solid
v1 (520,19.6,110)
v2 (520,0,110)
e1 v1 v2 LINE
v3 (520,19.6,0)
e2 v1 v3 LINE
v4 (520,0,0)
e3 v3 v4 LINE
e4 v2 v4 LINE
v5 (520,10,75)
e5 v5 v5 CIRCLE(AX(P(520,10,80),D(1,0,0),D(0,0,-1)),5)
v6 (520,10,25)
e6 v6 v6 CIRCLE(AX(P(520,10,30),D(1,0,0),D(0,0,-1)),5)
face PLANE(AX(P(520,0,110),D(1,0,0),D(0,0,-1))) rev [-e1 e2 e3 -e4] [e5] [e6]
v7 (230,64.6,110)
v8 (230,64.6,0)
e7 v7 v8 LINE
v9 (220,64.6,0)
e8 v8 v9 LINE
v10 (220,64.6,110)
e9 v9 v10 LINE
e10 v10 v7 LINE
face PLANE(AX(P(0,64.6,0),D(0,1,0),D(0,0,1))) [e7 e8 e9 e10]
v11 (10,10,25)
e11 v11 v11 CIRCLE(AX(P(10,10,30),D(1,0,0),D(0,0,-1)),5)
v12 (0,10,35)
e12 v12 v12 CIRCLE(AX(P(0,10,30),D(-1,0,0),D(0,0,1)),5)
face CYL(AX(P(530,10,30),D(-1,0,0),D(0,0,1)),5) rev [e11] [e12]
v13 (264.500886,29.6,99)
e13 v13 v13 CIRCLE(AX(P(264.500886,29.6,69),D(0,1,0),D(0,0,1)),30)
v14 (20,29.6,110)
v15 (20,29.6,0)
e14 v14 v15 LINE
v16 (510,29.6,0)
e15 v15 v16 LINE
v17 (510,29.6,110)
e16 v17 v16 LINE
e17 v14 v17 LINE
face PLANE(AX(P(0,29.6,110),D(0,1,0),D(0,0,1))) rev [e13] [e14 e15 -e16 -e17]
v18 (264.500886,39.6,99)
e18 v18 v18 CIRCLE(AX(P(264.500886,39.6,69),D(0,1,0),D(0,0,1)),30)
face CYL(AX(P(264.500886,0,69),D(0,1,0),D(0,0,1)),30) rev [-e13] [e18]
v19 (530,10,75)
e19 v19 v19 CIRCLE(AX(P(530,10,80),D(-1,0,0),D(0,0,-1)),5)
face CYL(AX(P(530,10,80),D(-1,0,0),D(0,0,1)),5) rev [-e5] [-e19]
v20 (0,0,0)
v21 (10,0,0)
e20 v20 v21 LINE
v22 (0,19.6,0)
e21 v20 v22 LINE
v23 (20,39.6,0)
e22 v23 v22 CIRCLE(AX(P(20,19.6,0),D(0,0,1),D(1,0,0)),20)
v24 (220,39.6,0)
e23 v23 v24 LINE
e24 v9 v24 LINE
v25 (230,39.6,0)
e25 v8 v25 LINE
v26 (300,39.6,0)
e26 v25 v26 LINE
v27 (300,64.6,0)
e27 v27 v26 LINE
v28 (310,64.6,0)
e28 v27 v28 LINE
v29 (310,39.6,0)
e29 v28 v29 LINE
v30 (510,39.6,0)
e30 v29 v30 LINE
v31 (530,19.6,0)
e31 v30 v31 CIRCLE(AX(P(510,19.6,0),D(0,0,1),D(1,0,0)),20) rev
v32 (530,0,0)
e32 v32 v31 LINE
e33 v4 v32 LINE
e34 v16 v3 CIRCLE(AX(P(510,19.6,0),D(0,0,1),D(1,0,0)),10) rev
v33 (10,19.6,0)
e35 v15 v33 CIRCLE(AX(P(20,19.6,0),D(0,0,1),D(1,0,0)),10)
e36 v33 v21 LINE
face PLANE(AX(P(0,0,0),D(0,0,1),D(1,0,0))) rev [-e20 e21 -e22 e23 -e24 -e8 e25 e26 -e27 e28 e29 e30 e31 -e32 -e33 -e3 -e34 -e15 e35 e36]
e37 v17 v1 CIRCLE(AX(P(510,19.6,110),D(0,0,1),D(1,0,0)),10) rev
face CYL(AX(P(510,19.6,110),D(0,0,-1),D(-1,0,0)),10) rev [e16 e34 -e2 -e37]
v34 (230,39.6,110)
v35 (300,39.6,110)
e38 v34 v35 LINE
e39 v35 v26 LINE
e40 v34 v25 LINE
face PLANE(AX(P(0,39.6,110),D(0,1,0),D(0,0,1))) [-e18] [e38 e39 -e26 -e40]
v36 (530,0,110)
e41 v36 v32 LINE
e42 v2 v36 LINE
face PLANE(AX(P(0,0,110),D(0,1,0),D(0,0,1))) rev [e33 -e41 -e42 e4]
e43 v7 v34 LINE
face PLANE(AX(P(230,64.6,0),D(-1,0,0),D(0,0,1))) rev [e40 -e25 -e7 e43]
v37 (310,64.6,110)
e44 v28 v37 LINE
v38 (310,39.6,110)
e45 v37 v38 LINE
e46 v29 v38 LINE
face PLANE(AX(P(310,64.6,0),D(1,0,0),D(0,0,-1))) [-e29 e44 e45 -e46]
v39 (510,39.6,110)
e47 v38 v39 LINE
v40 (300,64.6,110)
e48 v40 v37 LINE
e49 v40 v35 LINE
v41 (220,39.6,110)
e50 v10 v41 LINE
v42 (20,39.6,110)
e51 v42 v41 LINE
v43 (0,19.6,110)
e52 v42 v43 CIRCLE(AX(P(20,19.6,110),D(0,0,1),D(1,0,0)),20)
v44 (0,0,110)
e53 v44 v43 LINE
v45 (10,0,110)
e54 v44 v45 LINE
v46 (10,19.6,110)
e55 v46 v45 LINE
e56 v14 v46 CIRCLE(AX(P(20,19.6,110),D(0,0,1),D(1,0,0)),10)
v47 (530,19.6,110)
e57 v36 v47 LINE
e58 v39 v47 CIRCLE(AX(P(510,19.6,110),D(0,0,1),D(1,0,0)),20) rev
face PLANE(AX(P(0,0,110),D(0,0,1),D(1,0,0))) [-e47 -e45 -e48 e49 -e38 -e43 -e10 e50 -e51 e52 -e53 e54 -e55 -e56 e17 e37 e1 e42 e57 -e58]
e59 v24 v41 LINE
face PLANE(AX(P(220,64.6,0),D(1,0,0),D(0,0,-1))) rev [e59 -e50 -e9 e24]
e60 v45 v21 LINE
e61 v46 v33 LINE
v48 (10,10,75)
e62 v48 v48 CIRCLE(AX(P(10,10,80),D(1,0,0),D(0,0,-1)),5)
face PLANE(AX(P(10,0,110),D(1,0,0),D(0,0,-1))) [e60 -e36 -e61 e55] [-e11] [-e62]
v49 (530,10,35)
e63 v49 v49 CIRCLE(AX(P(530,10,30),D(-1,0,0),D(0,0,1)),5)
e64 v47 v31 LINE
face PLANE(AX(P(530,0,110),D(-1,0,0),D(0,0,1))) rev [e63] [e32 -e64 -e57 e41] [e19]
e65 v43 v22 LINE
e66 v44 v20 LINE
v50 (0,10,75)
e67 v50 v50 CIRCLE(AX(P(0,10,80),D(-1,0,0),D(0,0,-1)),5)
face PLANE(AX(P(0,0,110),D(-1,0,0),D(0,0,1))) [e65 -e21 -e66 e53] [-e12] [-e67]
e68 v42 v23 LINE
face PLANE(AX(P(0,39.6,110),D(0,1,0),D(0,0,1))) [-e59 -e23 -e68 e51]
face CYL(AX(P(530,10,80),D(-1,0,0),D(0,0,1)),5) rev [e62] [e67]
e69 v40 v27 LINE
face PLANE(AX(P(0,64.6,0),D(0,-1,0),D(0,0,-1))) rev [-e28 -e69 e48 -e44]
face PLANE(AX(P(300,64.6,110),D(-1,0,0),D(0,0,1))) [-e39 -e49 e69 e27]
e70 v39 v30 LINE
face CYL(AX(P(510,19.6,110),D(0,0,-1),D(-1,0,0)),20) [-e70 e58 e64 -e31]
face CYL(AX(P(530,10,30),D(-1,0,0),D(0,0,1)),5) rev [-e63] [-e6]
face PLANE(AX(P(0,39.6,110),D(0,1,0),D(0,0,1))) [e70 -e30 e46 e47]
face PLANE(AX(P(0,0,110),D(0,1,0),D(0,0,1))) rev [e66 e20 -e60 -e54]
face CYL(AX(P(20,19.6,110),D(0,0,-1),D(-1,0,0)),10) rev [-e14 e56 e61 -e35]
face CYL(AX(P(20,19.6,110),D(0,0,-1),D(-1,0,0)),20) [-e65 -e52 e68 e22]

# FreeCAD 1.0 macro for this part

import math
import FreeCAD as App
import Part
import Sketcher
from FreeCAD import Vector

doc = App.newDocument("Part")
params = doc.addObject("Spreadsheet::Sheet", "Params")
for row, (alias, value) in enumerate([
    ("sketch1_radius", "10 mm"),
    ("sketch1_radius2", "20 mm"),
    ("sketch1_width", "490 mm"),
    ("sketch1_height", "19.6 mm"),
    ("pad1_length", "110 mm"),
    ("sketch2_diameter", "10 mm"),
    ("sketch3_width", "10 mm"),
    ("sketch3_height", "110 mm"),
    ("pad2_length", "25 mm"),
    ("sketch4_diameter", "60 mm"),
], start=1):
    params.set(f"A{row}", alias)
    params.set(f"B{row}", "=" + value)
    params.setAlias(f"B{row}", alias)

body = doc.addObject("PartDesign::Body", "Body")

sketch1 = body.newObject("Sketcher::SketchObject", "Sketch")
sketch1.AttachmentSupport = (doc.getObject("XY_Plane"), [""])
sketch1.MapMode = "FlatFace"
sketch1.addGeometry([
    Part.LineSegment(Vector(20, 29.6, 0), Vector(510, 29.6, 0)),
    Part.ArcOfCircle(Part.Circle(Vector(510, 19.6, 0), Vector(0, 0, 1), 10), math.radians(0), math.radians(90)),
    Part.LineSegment(Vector(520, 19.6, 0), Vector(520, 0, 0)),
    Part.LineSegment(Vector(520, 0, 0), Vector(530, 0, 0)),
    Part.LineSegment(Vector(530, 0, 0), Vector(530, 19.6, 0)),
    Part.ArcOfCircle(Part.Circle(Vector(510, 19.6, 0), Vector(0, 0, 1), 20), math.radians(0), math.radians(90)),
    Part.LineSegment(Vector(510, 39.6, 0), Vector(20, 39.6, 0)),
    Part.ArcOfCircle(Part.Circle(Vector(20, 19.6, 0), Vector(0, 0, 1), 20), math.radians(90), math.radians(180)),
    Part.LineSegment(Vector(0, 19.6, 0), Vector(0, 0, 0)),
    Part.LineSegment(Vector(0, 0, 0), Vector(10, 0, 0)),
    Part.LineSegment(Vector(10, 0, 0), Vector(10, 19.6, 0)),
    Part.ArcOfCircle(Part.Circle(Vector(20, 19.6, 0), Vector(0, 0, 1), 10), math.radians(90), math.radians(180)),
], False)
sketch1.addConstraint([
    Sketcher.Constraint("Tangent", 0, 2, 1, 2),
    Sketcher.Constraint("Tangent", 1, 1, 2, 1),
    Sketcher.Constraint("Coincident", 2, 2, 3, 1),
    Sketcher.Constraint("Coincident", 3, 2, 4, 1),
    Sketcher.Constraint("Tangent", 4, 2, 5, 1),
    Sketcher.Constraint("Tangent", 5, 2, 6, 1),
    Sketcher.Constraint("Tangent", 6, 2, 7, 1),
    Sketcher.Constraint("Tangent", 7, 2, 8, 1),
    Sketcher.Constraint("Coincident", 8, 2, 9, 1),
    Sketcher.Constraint("Coincident", 9, 2, 10, 1),
    Sketcher.Constraint("Tangent", 10, 2, 11, 2),
    Sketcher.Constraint("Tangent", 11, 1, 0, 1),
    Sketcher.Constraint("Horizontal", 0),
    Sketcher.Constraint("Vertical", 2),
    Sketcher.Constraint("Horizontal", 3),
    Sketcher.Constraint("Vertical", 4),
    Sketcher.Constraint("Horizontal", 6),
    Sketcher.Constraint("Vertical", 8),
    Sketcher.Constraint("Horizontal", 9),
    Sketcher.Constraint("Vertical", 10),
    Sketcher.Constraint("Coincident", 8, 2, -1, 1),
    Sketcher.Constraint("Coincident", 5, 3, 1, 3),
    Sketcher.Constraint("Coincident", 11, 3, 7, 3),
    Sketcher.Constraint("Equal", 5, 7),
    Sketcher.Constraint("PointOnObject", 2, 2, -1),
    Sketcher.Constraint("Radius", 1, 10.0),
    Sketcher.Constraint("Radius", 5, 20.0),
    Sketcher.Constraint("DistanceX", 0, 1, 0, 2, 490.0),
    Sketcher.Constraint("DistanceY", 2, 2, 2, 1, 19.6),
])
sketch1.setExpression("Constraints[25]", "Params.sketch1_radius")
sketch1.setExpression("Constraints[26]", "Params.sketch1_radius2")
sketch1.setExpression("Constraints[27]", "Params.sketch1_width")
sketch1.setExpression("Constraints[28]", "Params.sketch1_height")
pad1 = body.newObject("PartDesign::Pad", "Pad")
pad1.Profile = sketch1
pad1.setExpression("Length", "Params.pad1_length")

sketch2 = body.newObject("Sketcher::SketchObject", "Sketch001")
sketch2.AttachmentSupport = (doc.getObject("YZ_Plane"), [""])
sketch2.MapMode = "FlatFace"
sketch2.addGeometry([
    Part.Circle(Vector(10, 30, 0), Vector(0, 0, 1), 5),
    Part.Circle(Vector(10, 80, 0), Vector(0, 0, 1), 5),
], False)
sketch2.addConstraint([
    Sketcher.Constraint("Equal", 0, 1),
    Sketcher.Constraint("Vertical", 0, 3, 1, 3),
    Sketcher.Constraint("Diameter", 0, 10.0),
    Sketcher.Constraint("DistanceX", -1, 1, 0, 3, 10.0),
    Sketcher.Constraint("DistanceY", -1, 1, 0, 3, 30.0),
    Sketcher.Constraint("DistanceY", -1, 1, 1, 3, 80.0),
])
sketch2.setExpression("Constraints[2]", "Params.sketch2_diameter")
pocket1 = body.newObject("PartDesign::Pocket", "Pocket")
pocket1.Profile = sketch2
pocket1.Type = "ThroughAll"
pocket1.Reversed = True

sketch3 = body.newObject("Sketcher::SketchObject", "Sketch002")
sketch3.AttachmentSupport = (doc.getObject("XZ_Plane"), [""])
sketch3.MapMode = "FlatFace"
sketch3.AttachmentOffset = App.Placement(Vector(0, 0, -39.6), App.Rotation())
sketch3.addGeometry([
    Part.LineSegment(Vector(220, 0, 0), Vector(220, 110, 0)),
    Part.LineSegment(Vector(220, 110, 0), Vector(230, 110, 0)),
    Part.LineSegment(Vector(230, 110, 0), Vector(230, 0, 0)),
    Part.LineSegment(Vector(230, 0, 0), Vector(220, 0, 0)),
    Part.LineSegment(Vector(300, 0, 0), Vector(300, 110, 0)),
    Part.LineSegment(Vector(300, 110, 0), Vector(310, 110, 0)),
    Part.LineSegment(Vector(310, 110, 0), Vector(310, 0, 0)),
    Part.LineSegment(Vector(310, 0, 0), Vector(300, 0, 0)),
], False)
sketch3.addConstraint([
    Sketcher.Constraint("Coincident", 0, 2, 1, 1),
    Sketcher.Constraint("Coincident", 1, 2, 2, 1),
    Sketcher.Constraint("Coincident", 2, 2, 3, 1),
    Sketcher.Constraint("Coincident", 3, 2, 0, 1),
    Sketcher.Constraint("Coincident", 4, 2, 5, 1),
    Sketcher.Constraint("Coincident", 5, 2, 6, 1),
    Sketcher.Constraint("Coincident", 6, 2, 7, 1),
    Sketcher.Constraint("Coincident", 7, 2, 4, 1),
    Sketcher.Constraint("Vertical", 0),
    Sketcher.Constraint("Horizontal", 1),
    Sketcher.Constraint("Vertical", 2),
    Sketcher.Constraint("Horizontal", 3),
    Sketcher.Constraint("Vertical", 4),
    Sketcher.Constraint("Horizontal", 5),
    Sketcher.Constraint("Vertical", 6),
    Sketcher.Constraint("Horizontal", 7),
    Sketcher.Constraint("PointOnObject", 2, 2, -1),
    Sketcher.Constraint("PointOnObject", 6, 2, -1),
    Sketcher.Constraint("Horizontal", 1, 2, 4, 2),
    Sketcher.Constraint("Equal", 3, 5),
    Sketcher.Constraint("DistanceX", 1, 1, 1, 2, 10.0),
    Sketcher.Constraint("DistanceY", 0, 1, 0, 2, 110.0),
    Sketcher.Constraint("DistanceX", -1, 1, 0, 2, 220.0),
    Sketcher.Constraint("DistanceX", -1, 1, 4, 2, 300.0),
])
sketch3.setExpression("Constraints[20]", "Params.sketch3_width")
sketch3.setExpression("Constraints[21]", "Params.sketch3_height")
pad2 = body.newObject("PartDesign::Pad", "Pad001")
pad2.Profile = sketch3
pad2.setExpression("Length", "Params.pad2_length")
pad2.Reversed = True

sketch4 = body.newObject("Sketcher::SketchObject", "Sketch003")
sketch4.AttachmentSupport = (doc.getObject("XZ_Plane"), [""])
sketch4.MapMode = "FlatFace"
sketch4.AttachmentOffset = App.Placement(Vector(0, 0, -39.6), App.Rotation())
sketch4.addGeometry(Part.Circle(Vector(264.500886, 69, 0), Vector(0, 0, 1), 30), False)
sketch4.addConstraint([
    Sketcher.Constraint("Diameter", 0, 60.0),
    Sketcher.Constraint("DistanceY", -1, 1, 0, 3, 69.0),
    Sketcher.Constraint("DistanceX", -1, 1, 0, 3, 264.500886),
])
sketch4.setExpression("Constraints[0]", "Params.sketch4_diameter")
pocket2 = body.newObject("PartDesign::Pocket", "Pocket001")
pocket2.Profile = sketch4
pocket2.Type = "ThroughAll"
pocket2.Reversed = True

doc.recompute()
